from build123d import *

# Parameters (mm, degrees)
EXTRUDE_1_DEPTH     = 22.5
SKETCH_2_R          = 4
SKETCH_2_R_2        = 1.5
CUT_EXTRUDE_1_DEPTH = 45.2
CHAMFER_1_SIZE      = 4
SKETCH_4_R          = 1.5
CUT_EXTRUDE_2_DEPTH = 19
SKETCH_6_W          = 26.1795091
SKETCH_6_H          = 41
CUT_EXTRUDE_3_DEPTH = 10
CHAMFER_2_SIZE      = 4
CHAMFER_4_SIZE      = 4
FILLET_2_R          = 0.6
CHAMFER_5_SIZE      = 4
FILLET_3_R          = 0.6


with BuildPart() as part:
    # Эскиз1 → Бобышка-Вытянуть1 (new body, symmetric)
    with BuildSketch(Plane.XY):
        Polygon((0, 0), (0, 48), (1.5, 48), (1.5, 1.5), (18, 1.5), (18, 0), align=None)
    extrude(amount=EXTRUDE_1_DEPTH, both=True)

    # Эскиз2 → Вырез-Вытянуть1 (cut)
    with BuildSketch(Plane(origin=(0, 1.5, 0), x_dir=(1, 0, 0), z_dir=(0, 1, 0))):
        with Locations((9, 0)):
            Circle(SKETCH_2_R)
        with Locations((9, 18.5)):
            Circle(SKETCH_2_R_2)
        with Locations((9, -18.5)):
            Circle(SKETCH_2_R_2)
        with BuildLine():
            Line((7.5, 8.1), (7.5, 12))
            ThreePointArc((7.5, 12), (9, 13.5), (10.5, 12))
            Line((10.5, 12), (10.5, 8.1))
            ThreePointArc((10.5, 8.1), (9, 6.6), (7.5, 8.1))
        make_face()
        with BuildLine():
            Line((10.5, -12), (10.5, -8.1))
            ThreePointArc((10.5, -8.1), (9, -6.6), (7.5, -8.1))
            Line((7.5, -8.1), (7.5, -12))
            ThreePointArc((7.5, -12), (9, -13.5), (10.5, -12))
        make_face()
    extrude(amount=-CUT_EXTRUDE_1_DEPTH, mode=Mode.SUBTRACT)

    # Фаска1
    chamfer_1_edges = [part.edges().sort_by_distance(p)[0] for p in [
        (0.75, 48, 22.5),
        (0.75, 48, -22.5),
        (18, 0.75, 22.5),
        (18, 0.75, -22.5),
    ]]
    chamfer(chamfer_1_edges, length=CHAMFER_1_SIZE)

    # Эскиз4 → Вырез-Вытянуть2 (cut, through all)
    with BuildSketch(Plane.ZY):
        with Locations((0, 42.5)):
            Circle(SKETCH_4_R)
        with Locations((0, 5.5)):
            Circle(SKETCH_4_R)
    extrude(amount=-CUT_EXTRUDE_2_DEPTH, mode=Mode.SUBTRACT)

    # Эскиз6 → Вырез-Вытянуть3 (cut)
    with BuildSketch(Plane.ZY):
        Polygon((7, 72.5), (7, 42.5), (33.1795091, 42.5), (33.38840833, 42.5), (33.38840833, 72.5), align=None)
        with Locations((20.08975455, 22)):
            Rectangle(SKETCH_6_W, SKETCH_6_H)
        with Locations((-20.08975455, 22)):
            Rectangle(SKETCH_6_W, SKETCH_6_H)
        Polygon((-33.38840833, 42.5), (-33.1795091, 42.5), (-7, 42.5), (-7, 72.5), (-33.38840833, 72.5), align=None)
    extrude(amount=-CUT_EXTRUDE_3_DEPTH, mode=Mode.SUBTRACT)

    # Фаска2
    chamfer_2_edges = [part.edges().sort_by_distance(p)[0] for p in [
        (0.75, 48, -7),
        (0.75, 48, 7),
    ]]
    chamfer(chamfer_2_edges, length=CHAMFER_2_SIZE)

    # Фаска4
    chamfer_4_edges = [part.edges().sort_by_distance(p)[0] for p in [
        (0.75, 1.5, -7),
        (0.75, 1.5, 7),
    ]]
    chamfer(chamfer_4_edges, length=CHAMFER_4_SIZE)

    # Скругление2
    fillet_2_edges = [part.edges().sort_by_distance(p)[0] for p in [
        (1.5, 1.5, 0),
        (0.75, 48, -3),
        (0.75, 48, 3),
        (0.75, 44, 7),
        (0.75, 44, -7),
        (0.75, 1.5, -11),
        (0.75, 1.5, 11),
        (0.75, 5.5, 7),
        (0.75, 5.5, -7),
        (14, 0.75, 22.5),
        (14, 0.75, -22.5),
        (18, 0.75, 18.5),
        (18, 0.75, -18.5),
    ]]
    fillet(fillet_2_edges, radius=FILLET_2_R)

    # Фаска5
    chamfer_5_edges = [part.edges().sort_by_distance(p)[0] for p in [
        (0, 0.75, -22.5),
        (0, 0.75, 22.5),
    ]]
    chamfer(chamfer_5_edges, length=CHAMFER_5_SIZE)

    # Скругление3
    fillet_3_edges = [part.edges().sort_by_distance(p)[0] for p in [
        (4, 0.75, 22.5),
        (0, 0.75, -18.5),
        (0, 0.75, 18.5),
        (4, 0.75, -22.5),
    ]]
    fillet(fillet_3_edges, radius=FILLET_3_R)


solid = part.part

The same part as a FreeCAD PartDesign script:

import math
import FreeCAD as App
import Part
import Sketcher
from FreeCAD import Vector


def edges_at(feature, points):
    """Names of the edges that pass closest to the given points."""
    edges = feature.Shape.Edges
    near = lambda p: min(range(len(edges)), key=lambda i: edges[i].distToShape(Part.Vertex(*p))[0])
    return sorted({f"Edge{near(p) + 1}" for p in points})


def add_polygon(sketch, points):
    """Adds a closed chain of lines whose ends are joined by coincident constraints."""
    first, n = sketch.GeometryCount, len(points)
    for a, b in zip(points, points[1:] + points[:1]):
        sketch.addGeometry(Part.LineSegment(App.Vector(*a, 0), App.Vector(*b, 0)), False)
    for i in range(n):
        sketch.addConstraint(Sketcher.Constraint("Coincident", first + i, 2, first + (i + 1) % n, 1))

doc = App.newDocument("Part")
body = doc.addObject("PartDesign::Body", "Body")

# Sketch on XY plane
sketch1 = body.newObject("Sketcher::SketchObject", "Sketch")
sketch1.AttachmentSupport = (doc.getObject("XY_Plane"), [""])
sketch1.MapMode = "FlatFace"
add_polygon(sketch1, [(0, 48), (0, 0), (18, 0), (18, 1.5), (1.5, 1.5), (1.5, 48)])  # lines 0-5
sketch1.addConstraint([
    Sketcher.Constraint("Vertical", 0),
    Sketcher.Constraint("Horizontal", 1),
    Sketcher.Constraint("Vertical", 2),
    Sketcher.Constraint("Horizontal", 3),
    Sketcher.Constraint("Vertical", 4),
    Sketcher.Constraint("Horizontal", 5),
    Sketcher.Constraint("Coincident", 0, 2, -1, 1),
    Sketcher.Constraint("Equal", 5, 2),
    Sketcher.Constraint("DistanceX", 1, 1, 1, 2, 18.0),
    Sketcher.Constraint("DistanceY", 0, 2, 0, 1, 48.0),
    Sketcher.Constraint("DistanceX", 3, 2, 3, 1, 16.5),
])
pad1 = body.newObject("PartDesign::Pad", "Pad")
pad1.Profile = sketch1
pad1.Length = 45
pad1.Midplane = True

# Sketch on XZ plane
sketch2 = body.newObject("Sketcher::SketchObject", "Sketch001")
sketch2.AttachmentSupport = (doc.getObject("XZ_Plane"), [""])
sketch2.MapMode = "FlatFace"
sketch2.AttachmentOffset = App.Placement(Vector(0, 0, -1.5), App.Rotation())
sketch2.addGeometry([
    Part.Circle(Vector(9, 0, 0), Vector(0, 0, 1), 4),  # 0
    Part.Circle(Vector(9, -18.5, 0), Vector(0, 0, 1), 1.5),  # 1
    Part.Circle(Vector(9, 18.5, 0), Vector(0, 0, 1), 1.5),  # 2
    Part.LineSegment(Vector(7.5, -12, 0), Vector(7.5, -8.1, 0)),  # 3
    Part.ArcOfCircle(Part.Circle(Vector(9, -8.1, 0), Vector(0, 0, 1), 1.5), math.radians(0), math.radians(180)),  # 4
    Part.LineSegment(Vector(10.5, -8.1, 0), Vector(10.5, -12, 0)),  # 5
    Part.ArcOfCircle(Part.Circle(Vector(9, -12, 0), Vector(0, 0, 1), 1.5), math.radians(180), math.radians(360)),  # 6
    Part.LineSegment(Vector(10.5, 12, 0), Vector(10.5, 8.1, 0)),  # 7
    Part.ArcOfCircle(Part.Circle(Vector(9, 8.1, 0), Vector(0, 0, 1), 1.5), math.radians(180), math.radians(360)),  # 8
    Part.LineSegment(Vector(7.5, 8.1, 0), Vector(7.5, 12, 0)),  # 9
    Part.ArcOfCircle(Part.Circle(Vector(9, 12, 0), Vector(0, 0, 1), 1.5), math.radians(0), math.radians(180)),  # 10
], False)
sketch2.addConstraint([
    Sketcher.Constraint("Tangent", 3, 2, 4, 2),
    Sketcher.Constraint("Tangent", 4, 1, 5, 1),
    Sketcher.Constraint("Tangent", 5, 2, 6, 2),
    Sketcher.Constraint("Tangent", 6, 1, 3, 1),
    Sketcher.Constraint("Tangent", 7, 2, 8, 2),
    Sketcher.Constraint("Tangent", 8, 1, 9, 1),
    Sketcher.Constraint("Tangent", 9, 2, 10, 2),
    Sketcher.Constraint("Tangent", 10, 1, 7, 1),
    Sketcher.Constraint("Vertical", 3),
    Sketcher.Constraint("Vertical", 5),
    Sketcher.Constraint("Vertical", 7),
    Sketcher.Constraint("Vertical", 9),
    Sketcher.Constraint("Equal", 1, 2),
    Sketcher.Constraint("Equal", 2, 4),
    Sketcher.Constraint("Equal", 6, 8),
    Sketcher.Constraint("Symmetric", 1, 3, 2, 3, -1),
    Sketcher.Constraint("Symmetric", 4, 3, 8, 3, -1),
    Sketcher.Constraint("PointOnObject", 0, 3, -1),
    Sketcher.Constraint("Vertical", 0, 3, 1, 3),
    Sketcher.Constraint("Vertical", 2, 3, 4, 3),
    Sketcher.Constraint("Equal", 5, 7),
    Sketcher.Constraint("Diameter", 0, 8.0),
    Sketcher.Constraint("Diameter", 1, 3.0),
    Sketcher.Constraint("DistanceY", 3, 1, 3, 2, 3.9),
    Sketcher.Constraint("DistanceX", -1, 1, 0, 3, 9.0),
    Sketcher.Constraint("DistanceY", 6, 3, -1, 1, 12.0),
    Sketcher.Constraint("DistanceY", 1, 3, 2, 3, 37.0),
])
pocket1 = body.newObject("PartDesign::Pocket", "Pocket")
pocket1.Profile = sketch2
pocket1.Length = 45.2
pocket1.Reversed = True
doc.recompute()

chamfer = body.newObject("PartDesign::Chamfer", "Chamfer")
chamfer.Base = (pocket1, edges_at(pocket1, [
    (0.75, 48, 22.5),
    (0.75, 48, -22.5),
    (18, 0.75, 22.5),
    (18, 0.75, -22.5),
]))
chamfer.Size = 4

# Sketch on YZ plane
sketch3 = body.newObject("Sketcher::SketchObject", "Sketch002")
sketch3.AttachmentSupport = (doc.getObject("YZ_Plane"), [""])
sketch3.MapMode = "FlatFace"
sketch3.addGeometry([
    Part.Circle(Vector(42.5, 0, 0), Vector(0, 0, 1), 1.5),
    Part.Circle(Vector(5.5, 0, 0), Vector(0, 0, 1), 1.5),
], False)
sketch3.addConstraint([
    Sketcher.Constraint("Equal", 0, 1),
    Sketcher.Constraint("PointOnObject", 0, 3, -1),
    Sketcher.Constraint("PointOnObject", 1, 3, -1),
    Sketcher.Constraint("Diameter", 0, 3.0),
    Sketcher.Constraint("DistanceX", 1, 3, 0, 3, 37.0),
    Sketcher.Constraint("DistanceX", -1, 1, 0, 3, 42.5),
])
pocket2 = body.newObject("PartDesign::Pocket", "Pocket001")
pocket2.Profile = sketch3
pocket2.Type = "ThroughAll"
pocket2.Reversed = True

# Sketch on YZ plane
sketch4 = body.newObject("Sketcher::SketchObject", "Sketch003")
sketch4.AttachmentSupport = (doc.getObject("YZ_Plane"), [""])
sketch4.MapMode = "FlatFace"
add_polygon(sketch4, [(72.5, 7), (1.5, 7), (1.5, 33.179509), (42.5, 33.179509), (42.5, 33.388408), (72.5, 33.388408)])  # lines 0-5
add_polygon(sketch4, [(42.5, -33.179509), (1.5, -33.179509), (1.5, -7), (72.5, -7), (72.5, -33.388408), (42.5, -33.388408)])  # lines 6-11
sketch4.addConstraint([
    Sketcher.Constraint("Horizontal", 0),
    Sketcher.Constraint("Vertical", 1),
    Sketcher.Constraint("Horizontal", 2),
    Sketcher.Constraint("Vertical", 3),
    Sketcher.Constraint("Horizontal", 4),
    Sketcher.Constraint("Vertical", 5),
    Sketcher.Constraint("Horizontal", 6),
    Sketcher.Constraint("Vertical", 7),
    Sketcher.Constraint("Horizontal", 8),
    Sketcher.Constraint("Vertical", 9),
    Sketcher.Constraint("Horizontal", 10),
    Sketcher.Constraint("Vertical", 11),
    Sketcher.Constraint("Symmetric", 1, 2, 6, 2, -1),
    Sketcher.Constraint("Symmetric", 5, 2, 8, 2, -1),
    Sketcher.Constraint("Symmetric", 3, 2, 10, 2, -1),
    Sketcher.Constraint("DistanceX", 0, 2, 0, 1, 71.0),
    Sketcher.Constraint("DistanceX", 2, 1, 2, 2, 41.0),
    Sketcher.Constraint("DistanceY", -1, 1, 0, 2, 7.0),
    Sketcher.Constraint("DistanceX", -1, 1, 0, 2, 1.5),
    Sketcher.Constraint("DistanceY", 3, 1, 3, 2, 0.208899),
    Sketcher.Constraint("DistanceY", 1, 1, 1, 2, 26.179509),
])
pocket3 = body.newObject("PartDesign::Pocket", "Pocket002")
pocket3.Profile = sketch4
pocket3.Length = 10
pocket3.Reversed = True
doc.recompute()

chamfer2 = body.newObject("PartDesign::Chamfer", "Chamfer001")
chamfer2.Base = (pocket3, edges_at(pocket3, [(0.75, 48, -7), (0.75, 48, 7)]))
chamfer2.Size = 4
doc.recompute()

chamfer3 = body.newObject("PartDesign::Chamfer", "Chamfer002")
chamfer3.Base = (chamfer2, edges_at(chamfer2, [(0.75, 1.5, -7), (0.75, 1.5, 7)]))
chamfer3.Size = 4
doc.recompute()

fillet = body.newObject("PartDesign::Fillet", "Fillet")
fillet.Base = (chamfer3, edges_at(chamfer3, [
    (1.5, 1.5, 0),
    (0.75, 48, -3),
    (0.75, 48, 3),
    (0.75, 44, 7),
    (0.75, 44, -7),
    (0.75, 1.5, -11),
    (0.75, 1.5, 11),
    (0.75, 5.5, 7),
    (0.75, 5.5, -7),
    (14, 0.75, 22.5),
    (14, 0.75, -22.5),
    (18, 0.75, 18.5),
    (18, 0.75, -18.5),
]))
fillet.Radius = 0.6
doc.recompute()

chamfer4 = body.newObject("PartDesign::Chamfer", "Chamfer003")
chamfer4.Base = (fillet, edges_at(fillet, [(0, 0.75, -22.5), (0, 0.75, 22.5)]))
chamfer4.Size = 4
doc.recompute()

fillet2 = body.newObject("PartDesign::Fillet", "Fillet001")
fillet2.Base = (chamfer4, edges_at(chamfer4, [
    (4, 0.75, 22.5),
    (0, 0.75, -18.5),
    (0, 0.75, 18.5),
    (4, 0.75, -22.5),
]))
fillet2.Radius = 0.6

doc.recompute()
